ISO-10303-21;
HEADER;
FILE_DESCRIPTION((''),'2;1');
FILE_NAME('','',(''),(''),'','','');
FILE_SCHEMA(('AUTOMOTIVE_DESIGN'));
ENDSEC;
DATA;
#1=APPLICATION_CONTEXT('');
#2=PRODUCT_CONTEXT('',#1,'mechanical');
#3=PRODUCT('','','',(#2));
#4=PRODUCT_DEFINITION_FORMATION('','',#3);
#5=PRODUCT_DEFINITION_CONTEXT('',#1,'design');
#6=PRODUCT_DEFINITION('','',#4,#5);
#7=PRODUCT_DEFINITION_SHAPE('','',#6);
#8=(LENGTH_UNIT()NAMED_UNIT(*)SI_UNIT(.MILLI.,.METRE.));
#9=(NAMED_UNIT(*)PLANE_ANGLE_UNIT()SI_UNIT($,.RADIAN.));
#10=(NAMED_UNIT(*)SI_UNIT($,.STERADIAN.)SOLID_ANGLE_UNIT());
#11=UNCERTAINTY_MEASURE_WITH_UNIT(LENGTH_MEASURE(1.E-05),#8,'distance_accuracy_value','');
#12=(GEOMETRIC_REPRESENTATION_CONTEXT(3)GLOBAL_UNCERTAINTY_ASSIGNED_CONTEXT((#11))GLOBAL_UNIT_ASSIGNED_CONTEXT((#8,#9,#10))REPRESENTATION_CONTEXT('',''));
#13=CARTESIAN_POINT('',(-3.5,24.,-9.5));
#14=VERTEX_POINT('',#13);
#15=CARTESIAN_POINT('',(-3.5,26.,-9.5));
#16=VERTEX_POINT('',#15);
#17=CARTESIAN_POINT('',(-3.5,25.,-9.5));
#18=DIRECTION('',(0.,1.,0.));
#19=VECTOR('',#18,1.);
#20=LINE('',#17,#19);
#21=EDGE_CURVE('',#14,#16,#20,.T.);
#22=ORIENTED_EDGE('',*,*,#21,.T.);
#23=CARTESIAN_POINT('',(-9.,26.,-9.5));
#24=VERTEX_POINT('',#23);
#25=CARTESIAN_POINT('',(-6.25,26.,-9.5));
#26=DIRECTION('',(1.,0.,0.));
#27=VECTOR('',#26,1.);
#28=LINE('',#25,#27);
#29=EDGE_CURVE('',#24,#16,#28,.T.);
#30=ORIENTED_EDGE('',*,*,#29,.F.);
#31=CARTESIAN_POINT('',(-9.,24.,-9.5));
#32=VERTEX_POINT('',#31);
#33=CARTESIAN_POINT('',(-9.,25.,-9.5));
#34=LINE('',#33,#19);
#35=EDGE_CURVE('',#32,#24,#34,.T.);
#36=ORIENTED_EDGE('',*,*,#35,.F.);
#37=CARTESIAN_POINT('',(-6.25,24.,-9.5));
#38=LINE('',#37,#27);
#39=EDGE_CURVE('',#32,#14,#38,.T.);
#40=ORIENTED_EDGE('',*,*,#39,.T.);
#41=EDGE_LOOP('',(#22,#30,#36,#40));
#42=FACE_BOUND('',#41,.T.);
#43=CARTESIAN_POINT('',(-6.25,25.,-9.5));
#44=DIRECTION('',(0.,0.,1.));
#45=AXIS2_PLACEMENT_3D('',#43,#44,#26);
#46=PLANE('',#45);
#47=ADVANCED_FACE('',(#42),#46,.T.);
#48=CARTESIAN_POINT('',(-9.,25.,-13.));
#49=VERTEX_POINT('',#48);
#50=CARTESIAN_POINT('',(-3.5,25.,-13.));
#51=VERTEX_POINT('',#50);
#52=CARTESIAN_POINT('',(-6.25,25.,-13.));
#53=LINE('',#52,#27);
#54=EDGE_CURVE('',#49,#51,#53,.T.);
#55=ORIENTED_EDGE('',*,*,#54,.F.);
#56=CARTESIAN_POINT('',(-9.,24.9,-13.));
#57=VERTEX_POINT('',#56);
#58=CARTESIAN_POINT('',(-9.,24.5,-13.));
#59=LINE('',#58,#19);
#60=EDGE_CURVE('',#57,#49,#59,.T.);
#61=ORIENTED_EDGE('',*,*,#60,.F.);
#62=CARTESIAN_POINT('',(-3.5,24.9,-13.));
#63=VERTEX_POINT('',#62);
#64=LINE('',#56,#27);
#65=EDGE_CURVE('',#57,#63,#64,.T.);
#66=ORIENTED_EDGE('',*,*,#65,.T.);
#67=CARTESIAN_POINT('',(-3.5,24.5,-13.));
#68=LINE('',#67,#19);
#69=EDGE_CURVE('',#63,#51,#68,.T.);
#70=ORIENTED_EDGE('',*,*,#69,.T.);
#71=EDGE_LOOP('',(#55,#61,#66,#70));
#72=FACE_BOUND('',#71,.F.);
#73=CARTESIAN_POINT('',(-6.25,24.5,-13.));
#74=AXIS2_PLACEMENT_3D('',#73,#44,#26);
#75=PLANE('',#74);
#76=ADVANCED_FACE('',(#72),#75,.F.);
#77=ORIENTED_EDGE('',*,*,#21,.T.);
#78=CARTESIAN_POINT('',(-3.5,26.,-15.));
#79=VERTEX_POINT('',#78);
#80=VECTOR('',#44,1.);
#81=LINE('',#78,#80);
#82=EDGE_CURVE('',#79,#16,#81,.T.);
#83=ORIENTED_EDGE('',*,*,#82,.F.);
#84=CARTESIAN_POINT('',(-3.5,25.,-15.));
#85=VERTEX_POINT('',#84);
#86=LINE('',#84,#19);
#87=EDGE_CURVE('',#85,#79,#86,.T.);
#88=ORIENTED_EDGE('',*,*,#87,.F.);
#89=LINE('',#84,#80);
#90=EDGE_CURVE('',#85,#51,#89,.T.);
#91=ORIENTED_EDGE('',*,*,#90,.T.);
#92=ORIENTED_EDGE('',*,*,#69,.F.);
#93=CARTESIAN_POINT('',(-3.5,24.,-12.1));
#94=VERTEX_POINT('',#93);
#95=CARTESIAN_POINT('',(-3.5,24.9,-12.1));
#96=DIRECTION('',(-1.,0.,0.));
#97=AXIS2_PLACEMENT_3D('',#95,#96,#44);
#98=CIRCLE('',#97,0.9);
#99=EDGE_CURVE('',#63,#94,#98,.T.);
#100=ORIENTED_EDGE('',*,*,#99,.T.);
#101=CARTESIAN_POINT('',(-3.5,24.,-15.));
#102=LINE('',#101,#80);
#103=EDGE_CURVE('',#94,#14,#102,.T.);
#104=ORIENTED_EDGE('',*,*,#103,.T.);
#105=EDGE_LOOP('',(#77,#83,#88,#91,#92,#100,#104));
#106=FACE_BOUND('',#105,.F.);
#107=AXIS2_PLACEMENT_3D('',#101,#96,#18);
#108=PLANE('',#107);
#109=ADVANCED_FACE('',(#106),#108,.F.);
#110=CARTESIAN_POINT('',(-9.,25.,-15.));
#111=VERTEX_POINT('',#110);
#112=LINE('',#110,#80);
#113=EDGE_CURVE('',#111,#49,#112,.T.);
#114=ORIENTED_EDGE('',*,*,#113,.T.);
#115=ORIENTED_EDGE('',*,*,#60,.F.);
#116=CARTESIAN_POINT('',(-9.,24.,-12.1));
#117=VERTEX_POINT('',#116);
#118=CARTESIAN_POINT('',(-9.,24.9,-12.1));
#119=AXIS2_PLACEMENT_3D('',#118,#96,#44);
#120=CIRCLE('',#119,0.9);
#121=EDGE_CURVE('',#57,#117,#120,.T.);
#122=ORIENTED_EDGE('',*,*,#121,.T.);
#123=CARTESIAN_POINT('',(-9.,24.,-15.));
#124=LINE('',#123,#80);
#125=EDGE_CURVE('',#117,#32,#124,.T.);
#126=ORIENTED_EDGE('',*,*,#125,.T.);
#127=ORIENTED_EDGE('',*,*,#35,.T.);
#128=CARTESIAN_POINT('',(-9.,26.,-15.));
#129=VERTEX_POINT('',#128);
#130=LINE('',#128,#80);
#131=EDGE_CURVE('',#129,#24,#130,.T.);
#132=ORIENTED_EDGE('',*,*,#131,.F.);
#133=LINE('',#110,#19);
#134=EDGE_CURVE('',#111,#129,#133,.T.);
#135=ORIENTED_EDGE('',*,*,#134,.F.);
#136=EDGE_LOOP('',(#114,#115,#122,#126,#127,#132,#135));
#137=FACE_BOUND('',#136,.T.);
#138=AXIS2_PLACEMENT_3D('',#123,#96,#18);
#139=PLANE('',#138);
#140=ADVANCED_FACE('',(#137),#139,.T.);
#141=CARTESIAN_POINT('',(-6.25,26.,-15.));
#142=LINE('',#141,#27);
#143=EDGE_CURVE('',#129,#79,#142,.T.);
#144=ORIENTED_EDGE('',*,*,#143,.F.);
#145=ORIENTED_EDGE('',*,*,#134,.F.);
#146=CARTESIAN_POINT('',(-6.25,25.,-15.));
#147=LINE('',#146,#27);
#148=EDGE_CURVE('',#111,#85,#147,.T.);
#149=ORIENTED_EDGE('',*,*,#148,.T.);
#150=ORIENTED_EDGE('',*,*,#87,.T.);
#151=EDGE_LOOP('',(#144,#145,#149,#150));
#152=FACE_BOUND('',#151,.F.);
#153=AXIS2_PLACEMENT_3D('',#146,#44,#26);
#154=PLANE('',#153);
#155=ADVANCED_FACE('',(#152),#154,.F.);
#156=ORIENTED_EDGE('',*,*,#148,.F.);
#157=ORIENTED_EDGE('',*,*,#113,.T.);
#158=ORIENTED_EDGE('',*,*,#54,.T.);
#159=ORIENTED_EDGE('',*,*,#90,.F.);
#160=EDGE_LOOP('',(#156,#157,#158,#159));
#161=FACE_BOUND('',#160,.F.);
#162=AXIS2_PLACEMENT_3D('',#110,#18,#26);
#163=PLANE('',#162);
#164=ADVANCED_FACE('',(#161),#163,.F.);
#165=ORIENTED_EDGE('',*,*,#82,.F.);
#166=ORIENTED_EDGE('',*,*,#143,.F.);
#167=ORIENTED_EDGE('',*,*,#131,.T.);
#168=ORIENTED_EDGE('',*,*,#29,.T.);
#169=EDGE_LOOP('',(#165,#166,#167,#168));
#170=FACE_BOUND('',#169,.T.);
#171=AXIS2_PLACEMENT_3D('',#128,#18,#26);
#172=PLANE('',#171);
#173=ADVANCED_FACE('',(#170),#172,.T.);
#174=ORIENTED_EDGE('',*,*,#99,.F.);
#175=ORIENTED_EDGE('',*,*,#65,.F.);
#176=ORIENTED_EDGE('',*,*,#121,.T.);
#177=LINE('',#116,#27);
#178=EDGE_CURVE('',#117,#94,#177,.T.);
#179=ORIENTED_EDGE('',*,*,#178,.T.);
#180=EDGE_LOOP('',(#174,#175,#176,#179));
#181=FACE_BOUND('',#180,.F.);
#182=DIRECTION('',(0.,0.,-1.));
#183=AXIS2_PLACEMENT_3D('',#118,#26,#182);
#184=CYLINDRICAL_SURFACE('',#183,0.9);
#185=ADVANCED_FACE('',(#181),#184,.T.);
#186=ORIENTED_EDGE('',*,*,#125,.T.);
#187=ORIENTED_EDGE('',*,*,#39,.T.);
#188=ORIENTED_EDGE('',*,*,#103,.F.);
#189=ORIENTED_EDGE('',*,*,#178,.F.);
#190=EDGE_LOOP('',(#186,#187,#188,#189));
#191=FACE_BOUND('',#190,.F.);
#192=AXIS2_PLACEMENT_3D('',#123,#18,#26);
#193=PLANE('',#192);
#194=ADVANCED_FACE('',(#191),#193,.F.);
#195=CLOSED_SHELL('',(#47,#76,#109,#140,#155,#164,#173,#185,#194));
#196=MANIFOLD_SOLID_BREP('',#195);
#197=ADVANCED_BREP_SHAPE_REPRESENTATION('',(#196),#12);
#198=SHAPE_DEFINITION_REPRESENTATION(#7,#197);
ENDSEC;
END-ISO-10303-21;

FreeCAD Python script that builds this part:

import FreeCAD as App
import Part
import Sketcher

V = App.Vector
Q = App.Units.Quantity


def edges_at(feature, points):
    """Names of the edges that pass closest to the given points."""
    edges = feature.Shape.Edges
    near = lambda p: min(range(len(edges)), key=lambda i: edges[i].distToShape(Part.Vertex(*p))[0])
    return sorted({f"Edge{near(p) + 1}" for p in points})


def add_polygon(sketch, points):
    """Adds a closed chain of lines whose ends are joined by coincident constraints."""
    first, n = sketch.GeometryCount, len(points)
    for a, b in zip(points, points[1:] + points[:1]):
        sketch.addGeometry(Part.LineSegment(App.Vector(*a, 0), App.Vector(*b, 0)), False)
    for i in range(n):
        sketch.addConstraint(Sketcher.Constraint("Coincident", first + i, 2, first + (i + 1) % n, 1))

doc = App.newDocument("Part")
params = doc.addObject("Spreadsheet::Sheet", "Params")
for row, (alias, value) in enumerate([
    ("sketch1_height", "1 mm"),
    ("sketch1_width", "5.5 mm"),
    ("pad1_length", "2 mm"),
    ("sketch2_height", "2 mm"),
    ("sketch2_width", "5.5 mm"),
    ("pad2_length", "5.5 mm"),
    ("fillet_radius", "0.9 mm"),
], start=1):
    params.set(f"A{row}", alias)
    params.set(f"B{row}", "=" + value)
    params.setAlias(f"B{row}", alias)

body = doc.addObject("PartDesign::Body", "Body")

sketch1 = body.newObject("Sketcher::SketchObject", "Sketch")
sketch1.AttachmentSupport = (doc.getObject("XY_Plane"), [""])
sketch1.MapMode = "FlatFace"
sketch1.AttachmentOffset = App.Placement(V(0, 0, -15), App.Rotation())
add_polygon(sketch1, [(5, 25), (5, 24), (10.5, 24), (10.5, 25)])
sketch1.addConstraint([
    Sketcher.Constraint("Vertical", 0),
    Sketcher.Constraint("Horizontal", 1),
    Sketcher.Constraint("Vertical", 2),
    Sketcher.Constraint("Horizontal", 3),
    Sketcher.Constraint("DistanceY", 0, 2, 0, 1, Q("1 mm")),
    Sketcher.Constraint("DistanceX", 1, 1, 1, 2, Q("5.5 mm")),
    Sketcher.Constraint("DistanceX", -1, 1, 0, 2, Q("5 mm")),
    Sketcher.Constraint("DistanceY", -1, 1, 0, 2, Q("24 mm")),
])
sketch1.setExpression("Constraints[8]", "Params.sketch1_height")
sketch1.setExpression("Constraints[9]", "Params.sketch1_width")
pad1 = body.newObject("PartDesign::Pad", "Pad")
pad1.Profile = sketch1
pad1.setExpression("Length", "Params.pad1_length")
body2 = doc.addObject("PartDesign::Body", "Body001")

sketch2 = body2.newObject("Sketcher::SketchObject", "Sketch001")
sketch2.AttachmentSupport = (doc.getObject("XY_Plane001"), [""])
sketch2.MapMode = "FlatFace"
sketch2.AttachmentOffset = App.Placement(V(0, 0, -15), App.Rotation())
add_polygon(sketch2, [(5, 26), (5, 24), (10.5, 24), (10.5, 26)])
sketch2.addConstraint([
    Sketcher.Constraint("Vertical", 0),
    Sketcher.Constraint("Horizontal", 1),
    Sketcher.Constraint("Vertical", 2),
    Sketcher.Constraint("Horizontal", 3),
    Sketcher.Constraint("DistanceY", 0, 2, 0, 1, Q("2 mm")),
    Sketcher.Constraint("DistanceX", 1, 1, 1, 2, Q("5.5 mm")),
    Sketcher.Constraint("DistanceX", -1, 1, 0, 2, Q("5 mm")),
    Sketcher.Constraint("DistanceY", -1, 1, 0, 2, Q("24 mm")),
])
sketch2.setExpression("Constraints[8]", "Params.sketch2_height")
sketch2.setExpression("Constraints[9]", "Params.sketch2_width")
pad2 = body2.newObject("PartDesign::Pad", "Pad001")
pad2.Profile = sketch2
pad2.setExpression("Length", "Params.pad2_length")
doc.recompute()

boolean = body2.newObject("PartDesign::Boolean", "Boolean")
boolean.Type = "Cut"
boolean.addObjects([body])
doc.recompute()

fillet = body2.newObject("PartDesign::Fillet", "Fillet")
fillet.Base = (boolean, edges_at(boolean, [(7.75, 24, -13)]))
fillet.setExpression("Radius", "Params.fillet_radius")
body3 = doc.addObject("PartDesign::Body", "Body002")
doc.recompute()

body2.Placement = App.Placement(V(-14, 0, 0), App.Rotation(V(0, 0, 1), 0))
boolean2 = body3.newObject("PartDesign::Boolean", "Boolean001")
boolean2.Type = "Fuse"
boolean2.addObjects([body2])

doc.recompute()
